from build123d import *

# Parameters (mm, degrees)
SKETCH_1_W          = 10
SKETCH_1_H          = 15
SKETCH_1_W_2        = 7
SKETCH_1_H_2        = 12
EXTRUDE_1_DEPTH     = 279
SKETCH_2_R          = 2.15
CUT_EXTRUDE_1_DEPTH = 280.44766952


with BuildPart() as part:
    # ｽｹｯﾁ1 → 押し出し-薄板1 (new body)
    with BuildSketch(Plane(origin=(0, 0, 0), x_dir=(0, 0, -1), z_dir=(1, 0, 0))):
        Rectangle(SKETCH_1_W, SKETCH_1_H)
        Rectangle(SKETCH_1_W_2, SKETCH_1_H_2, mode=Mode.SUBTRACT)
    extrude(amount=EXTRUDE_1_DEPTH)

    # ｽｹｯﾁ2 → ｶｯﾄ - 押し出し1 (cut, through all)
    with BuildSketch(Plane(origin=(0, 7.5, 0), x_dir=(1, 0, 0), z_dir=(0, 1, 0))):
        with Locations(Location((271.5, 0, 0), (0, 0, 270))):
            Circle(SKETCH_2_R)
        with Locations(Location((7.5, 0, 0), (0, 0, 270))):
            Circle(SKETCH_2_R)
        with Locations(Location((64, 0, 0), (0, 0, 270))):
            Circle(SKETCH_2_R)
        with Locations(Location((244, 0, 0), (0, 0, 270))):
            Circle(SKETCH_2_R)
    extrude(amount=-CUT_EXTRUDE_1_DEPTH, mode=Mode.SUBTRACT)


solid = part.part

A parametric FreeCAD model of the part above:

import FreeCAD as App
import Part
import Sketcher
from FreeCAD import Vector


def add_polygon(sketch, points):
    """Adds a closed chain of lines whose ends are joined by coincident constraints."""
    first, n = sketch.GeometryCount, len(points)
    for a, b in zip(points, points[1:] + points[:1]):
        sketch.addGeometry(Part.LineSegment(App.Vector(*a, 0), App.Vector(*b, 0)), False)
    for i in range(n):
        sketch.addConstraint(Sketcher.Constraint("Coincident", first + i, 2, first + (i + 1) % n, 1))

doc = App.newDocument("Part")
body = doc.addObject("PartDesign::Body", "Body")

# Sketch on YZ plane
sketch1 = body.newObject("Sketcher::SketchObject", "Sketch")
sketch1.AttachmentSupport = (doc.getObject("YZ_Plane"), [""])
sketch1.MapMode = "FlatFace"
add_polygon(sketch1, [(8, 5), (-8, 5), (-8, -5), (8, -5)])  # lines 0-3
add_polygon(sketch1, [(-6, -4), (-6, 4), (6, 4), (6, -4)])  # lines 4-7
sketch1.addConstraint(Sketcher.Constraint("Horizontal", 0))
sketch1.addConstraint(Sketcher.Constraint("Vertical", 1))
sketch1.addConstraint(Sketcher.Constraint("Horizontal", 2))
sketch1.addConstraint(Sketcher.Constraint("Vertical", 3))
sketch1.addConstraint(Sketcher.Constraint("Vertical", 4))
sketch1.addConstraint(Sketcher.Constraint("Horizontal", 5))
sketch1.addConstraint(Sketcher.Constraint("Vertical", 6))
sketch1.addConstraint(Sketcher.Constraint("Horizontal", 7))
sketch1.addConstraint(Sketcher.Constraint("Symmetric", 0, 2, 2, 2, -1, 1))
sketch1.addConstraint(Sketcher.Constraint("Symmetric", 4, 2, 6, 2, -1, 1))
sketch1.addConstraint(Sketcher.Constraint("DistanceX", 0, 2, 0, 1, 15.0))
sketch1.addConstraint(Sketcher.Constraint("DistanceX", 5, 1, 5, 2, 12.0))
sketch1.addConstraint(Sketcher.Constraint("DistanceY", 1, 2, 1, 1, 10.0))
sketch1.addConstraint(Sketcher.Constraint("DistanceY", 4, 1, 4, 2, 7.0))
pad1 = body.newObject("PartDesign::Pad", "Pad")
pad1.Profile = sketch1
pad1.Length = 279

# Sketch on XZ plane
sketch2 = body.newObject("Sketcher::SketchObject", "Sketch001")
sketch2.AttachmentSupport = (doc.getObject("XZ_Plane"), [""])
sketch2.MapMode = "FlatFace"
sketch2.AttachmentOffset = App.Placement(Vector(0, 0, -7.5), App.Rotation())
sketch2.addGeometry(Part.Circle(Vector(271.5, 0, 0), Vector(0, 0, 1), 2.1), False)
sketch2.addGeometry(Part.Circle(Vector(7.5, 0, 0), Vector(0, 0, 1), 2.1), False)
sketch2.addGeometry(Part.Circle(Vector(64, 0, 0), Vector(0, 0, 1), 2.1), False)
sketch2.addGeometry(Part.Circle(Vector(244, 0, 0), Vector(0, 0, 1), 2.1), False)
sketch2.addConstraint(Sketcher.Constraint("Equal", 0, 1))
sketch2.addConstraint(Sketcher.Constraint("Equal", 1, 2))
sketch2.addConstraint(Sketcher.Constraint("Equal", 2, 3))
sketch2.addConstraint(Sketcher.Constraint("PointOnObject", 0, 3, -1))
sketch2.addConstraint(Sketcher.Constraint("PointOnObject", 1, 3, -1))
sketch2.addConstraint(Sketcher.Constraint("PointOnObject", 2, 3, -1))
sketch2.addConstraint(Sketcher.Constraint("PointOnObject", 3, 3, -1))
sketch2.addConstraint(Sketcher.Constraint("Diameter", 0, 4.3))
sketch2.addConstraint(Sketcher.Constraint("DistanceX", -1, 1, 2, 3, 64.0))
sketch2.addConstraint(Sketcher.Constraint("DistanceX", -1, 1, 3, 3, 244.0))
sketch2.addConstraint(Sketcher.Constraint("DistanceX", 1, 3, 0, 3, 264.0))
sketch2.addConstraint(Sketcher.Constraint("DistanceX", -1, 1, 0, 3, 271.5))
pocket1 = body.newObject("PartDesign::Pocket", "Pocket")
pocket1.Profile = sketch2
pocket1.Type = "ThroughAll"
pocket1.Reversed = True

doc.recompute()
